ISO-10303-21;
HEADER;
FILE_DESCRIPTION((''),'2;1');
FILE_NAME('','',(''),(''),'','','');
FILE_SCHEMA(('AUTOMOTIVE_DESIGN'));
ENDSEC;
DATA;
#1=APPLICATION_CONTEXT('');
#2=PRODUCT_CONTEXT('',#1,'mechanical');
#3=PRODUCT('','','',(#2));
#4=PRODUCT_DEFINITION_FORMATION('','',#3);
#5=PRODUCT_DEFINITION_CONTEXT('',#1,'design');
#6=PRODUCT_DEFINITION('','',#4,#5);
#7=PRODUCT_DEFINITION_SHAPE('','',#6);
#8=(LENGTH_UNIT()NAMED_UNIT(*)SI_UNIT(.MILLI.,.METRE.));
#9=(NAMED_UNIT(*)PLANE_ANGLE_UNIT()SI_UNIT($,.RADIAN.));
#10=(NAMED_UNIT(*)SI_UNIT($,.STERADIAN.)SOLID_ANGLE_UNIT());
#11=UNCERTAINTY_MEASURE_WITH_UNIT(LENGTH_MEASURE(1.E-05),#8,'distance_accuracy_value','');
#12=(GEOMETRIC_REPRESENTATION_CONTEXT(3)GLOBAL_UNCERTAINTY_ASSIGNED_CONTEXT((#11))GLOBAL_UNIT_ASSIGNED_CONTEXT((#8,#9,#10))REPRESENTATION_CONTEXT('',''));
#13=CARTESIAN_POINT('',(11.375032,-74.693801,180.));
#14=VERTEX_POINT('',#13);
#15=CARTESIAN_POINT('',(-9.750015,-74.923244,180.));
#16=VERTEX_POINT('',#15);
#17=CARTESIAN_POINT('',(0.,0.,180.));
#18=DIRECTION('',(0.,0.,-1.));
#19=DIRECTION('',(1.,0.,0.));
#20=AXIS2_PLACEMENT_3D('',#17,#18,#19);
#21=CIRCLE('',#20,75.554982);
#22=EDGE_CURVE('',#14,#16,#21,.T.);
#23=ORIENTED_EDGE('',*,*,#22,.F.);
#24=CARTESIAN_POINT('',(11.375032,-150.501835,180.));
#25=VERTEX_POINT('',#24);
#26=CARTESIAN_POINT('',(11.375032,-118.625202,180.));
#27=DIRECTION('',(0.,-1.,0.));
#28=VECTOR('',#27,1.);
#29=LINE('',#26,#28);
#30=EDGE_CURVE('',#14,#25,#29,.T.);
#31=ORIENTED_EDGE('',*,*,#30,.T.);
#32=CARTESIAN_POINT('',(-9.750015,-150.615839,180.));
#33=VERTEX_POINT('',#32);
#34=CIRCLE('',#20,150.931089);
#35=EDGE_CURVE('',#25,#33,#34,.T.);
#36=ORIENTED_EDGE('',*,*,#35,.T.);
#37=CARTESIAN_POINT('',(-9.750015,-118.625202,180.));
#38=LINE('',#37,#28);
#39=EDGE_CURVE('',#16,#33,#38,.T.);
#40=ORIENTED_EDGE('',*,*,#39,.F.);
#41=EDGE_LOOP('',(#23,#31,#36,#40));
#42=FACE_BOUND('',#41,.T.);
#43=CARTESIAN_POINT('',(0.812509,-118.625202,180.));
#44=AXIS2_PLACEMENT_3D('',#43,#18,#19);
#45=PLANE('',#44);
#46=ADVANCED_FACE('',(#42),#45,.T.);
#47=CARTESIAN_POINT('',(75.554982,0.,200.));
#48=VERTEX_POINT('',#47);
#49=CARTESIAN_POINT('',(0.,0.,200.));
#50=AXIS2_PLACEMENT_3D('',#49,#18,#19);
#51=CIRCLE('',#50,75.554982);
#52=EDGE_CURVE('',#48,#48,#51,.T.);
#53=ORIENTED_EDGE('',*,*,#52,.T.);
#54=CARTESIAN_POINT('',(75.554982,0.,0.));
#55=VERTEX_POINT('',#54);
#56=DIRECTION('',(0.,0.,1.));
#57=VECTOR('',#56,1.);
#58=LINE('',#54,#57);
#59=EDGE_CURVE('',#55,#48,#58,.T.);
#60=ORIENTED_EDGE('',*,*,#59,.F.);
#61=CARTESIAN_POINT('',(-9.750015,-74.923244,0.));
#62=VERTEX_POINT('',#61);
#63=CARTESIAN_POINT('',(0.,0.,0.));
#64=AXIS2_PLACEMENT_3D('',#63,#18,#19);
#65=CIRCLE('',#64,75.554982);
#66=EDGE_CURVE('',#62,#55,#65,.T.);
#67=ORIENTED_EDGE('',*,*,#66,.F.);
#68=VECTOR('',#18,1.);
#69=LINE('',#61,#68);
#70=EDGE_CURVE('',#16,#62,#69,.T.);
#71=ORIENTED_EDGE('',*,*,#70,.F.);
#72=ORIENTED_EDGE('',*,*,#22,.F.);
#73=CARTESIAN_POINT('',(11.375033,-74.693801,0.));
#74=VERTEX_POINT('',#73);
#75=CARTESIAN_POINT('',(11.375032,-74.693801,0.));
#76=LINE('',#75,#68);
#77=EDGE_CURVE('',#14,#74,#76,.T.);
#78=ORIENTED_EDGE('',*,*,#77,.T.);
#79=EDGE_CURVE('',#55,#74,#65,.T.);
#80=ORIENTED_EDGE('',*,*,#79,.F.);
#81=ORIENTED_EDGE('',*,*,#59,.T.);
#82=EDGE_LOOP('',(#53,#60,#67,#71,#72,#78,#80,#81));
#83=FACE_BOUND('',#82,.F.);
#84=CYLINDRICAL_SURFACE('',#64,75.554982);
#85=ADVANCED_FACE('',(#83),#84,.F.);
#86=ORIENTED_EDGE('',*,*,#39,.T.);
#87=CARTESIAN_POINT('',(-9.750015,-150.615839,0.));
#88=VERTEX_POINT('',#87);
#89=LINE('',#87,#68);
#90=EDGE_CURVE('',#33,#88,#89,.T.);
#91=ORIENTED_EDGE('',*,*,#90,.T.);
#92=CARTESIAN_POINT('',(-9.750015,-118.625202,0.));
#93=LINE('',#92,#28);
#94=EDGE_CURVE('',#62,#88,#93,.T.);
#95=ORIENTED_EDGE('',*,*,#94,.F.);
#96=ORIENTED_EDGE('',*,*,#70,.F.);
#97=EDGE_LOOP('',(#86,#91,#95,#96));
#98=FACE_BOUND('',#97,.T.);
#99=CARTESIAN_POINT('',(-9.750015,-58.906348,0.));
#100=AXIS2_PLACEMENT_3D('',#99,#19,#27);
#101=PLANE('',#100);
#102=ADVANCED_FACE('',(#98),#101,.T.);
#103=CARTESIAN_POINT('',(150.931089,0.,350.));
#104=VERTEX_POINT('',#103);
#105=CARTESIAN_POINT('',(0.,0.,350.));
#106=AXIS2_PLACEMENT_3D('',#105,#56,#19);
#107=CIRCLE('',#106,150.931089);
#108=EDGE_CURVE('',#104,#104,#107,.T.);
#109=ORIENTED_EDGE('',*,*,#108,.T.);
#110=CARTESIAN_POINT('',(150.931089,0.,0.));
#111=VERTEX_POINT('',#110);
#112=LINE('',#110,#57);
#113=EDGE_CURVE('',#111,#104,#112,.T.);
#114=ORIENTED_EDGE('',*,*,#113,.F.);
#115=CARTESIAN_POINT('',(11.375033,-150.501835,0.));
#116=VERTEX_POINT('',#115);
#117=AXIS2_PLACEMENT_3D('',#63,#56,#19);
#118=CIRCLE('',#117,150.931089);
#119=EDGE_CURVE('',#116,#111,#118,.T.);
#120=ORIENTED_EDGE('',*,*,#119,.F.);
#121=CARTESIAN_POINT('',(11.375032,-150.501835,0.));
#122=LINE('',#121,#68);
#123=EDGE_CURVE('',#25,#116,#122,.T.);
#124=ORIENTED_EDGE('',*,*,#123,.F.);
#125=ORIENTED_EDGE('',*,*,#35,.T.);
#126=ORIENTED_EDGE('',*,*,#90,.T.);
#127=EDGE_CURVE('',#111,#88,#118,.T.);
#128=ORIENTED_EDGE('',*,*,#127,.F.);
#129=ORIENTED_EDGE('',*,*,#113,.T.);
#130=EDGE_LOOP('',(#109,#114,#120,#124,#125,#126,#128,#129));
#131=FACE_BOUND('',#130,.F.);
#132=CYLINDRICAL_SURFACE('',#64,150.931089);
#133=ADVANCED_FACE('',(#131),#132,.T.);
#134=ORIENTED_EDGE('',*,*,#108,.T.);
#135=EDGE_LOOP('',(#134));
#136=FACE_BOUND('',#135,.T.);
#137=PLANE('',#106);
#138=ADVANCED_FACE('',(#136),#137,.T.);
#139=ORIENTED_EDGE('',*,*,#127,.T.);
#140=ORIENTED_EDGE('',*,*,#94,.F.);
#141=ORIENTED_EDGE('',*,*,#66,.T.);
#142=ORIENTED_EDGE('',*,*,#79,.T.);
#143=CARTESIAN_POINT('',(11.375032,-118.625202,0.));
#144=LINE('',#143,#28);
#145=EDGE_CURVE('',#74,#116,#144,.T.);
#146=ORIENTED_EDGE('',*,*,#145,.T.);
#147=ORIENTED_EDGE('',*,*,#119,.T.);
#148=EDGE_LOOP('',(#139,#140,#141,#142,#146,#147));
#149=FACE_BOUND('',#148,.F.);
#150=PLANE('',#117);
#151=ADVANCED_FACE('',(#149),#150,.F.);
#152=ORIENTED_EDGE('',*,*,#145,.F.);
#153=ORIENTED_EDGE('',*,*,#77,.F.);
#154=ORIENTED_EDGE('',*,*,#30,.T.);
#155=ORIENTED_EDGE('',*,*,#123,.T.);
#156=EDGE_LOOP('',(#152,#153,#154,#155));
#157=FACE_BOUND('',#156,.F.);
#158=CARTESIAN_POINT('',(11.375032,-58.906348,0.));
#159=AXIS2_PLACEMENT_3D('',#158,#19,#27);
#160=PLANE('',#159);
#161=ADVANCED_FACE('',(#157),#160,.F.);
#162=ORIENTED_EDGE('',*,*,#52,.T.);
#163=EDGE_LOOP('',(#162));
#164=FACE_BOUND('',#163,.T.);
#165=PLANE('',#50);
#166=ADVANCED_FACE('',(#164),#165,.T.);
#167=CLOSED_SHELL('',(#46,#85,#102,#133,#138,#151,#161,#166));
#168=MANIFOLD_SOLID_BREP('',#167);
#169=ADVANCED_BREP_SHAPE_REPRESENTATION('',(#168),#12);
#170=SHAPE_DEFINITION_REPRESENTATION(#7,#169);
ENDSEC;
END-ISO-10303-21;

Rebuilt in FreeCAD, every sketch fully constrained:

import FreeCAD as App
import Part
import Sketcher
from FreeCAD import Vector

doc = App.newDocument("Part")
body = doc.addObject("PartDesign::Body", "Body")

sketch1 = doc.addObject("Sketcher::SketchObject", "Sketch")
body.addObject(sketch1)
sketch1.AttachmentSupport = (doc.XY_Plane, [""])
sketch1.MapMode = "FlatFace"
sketch1.addGeometry(Part.Circle(Vector(0, 0, 0), Vector(0, 0, 1), 150.931089), False)
sketch1.addConstraint(Sketcher.Constraint("Coincident", 0, 3, -1, 1))
sketch1.addConstraint(Sketcher.Constraint("Diameter", 0, 301.862178))
pad1 = doc.addObject("PartDesign::Pad", "Pad")
body.addObject(pad1)
pad1.Profile = sketch1
pad1.Length = 350

sketch2 = doc.addObject("Sketcher::SketchObject", "Sketch001")
body.addObject(sketch2)
sketch2.AttachmentSupport = (doc.XY_Plane, [""])
sketch2.MapMode = "FlatFace"
sketch2.addGeometry(Part.Circle(Vector(0, 0, 0), Vector(0, 0, 1), 75.554982), False)
sketch2.addConstraint(Sketcher.Constraint("Coincident", 0, 3, -1, 1))
sketch2.addConstraint(Sketcher.Constraint("Diameter", 0, 151.109964))
pocket1 = doc.addObject("PartDesign::Pocket", "Pocket")
body.addObject(pocket1)
pocket1.Profile = sketch2
pocket1.Length = 200
pocket1.Reversed = True

sketch3 = doc.addObject("Sketcher::SketchObject", "Sketch002")
body.addObject(sketch3)
sketch3.AttachmentSupport = (doc.XY_Plane, [""])
sketch3.MapMode = "FlatFace"
sketch3.addGeometry(Part.LineSegment(Vector(-9.750015, -178.344056, 0), Vector(-9.750015, -58.906348, 0)), False)
sketch3.addGeometry(Part.LineSegment(Vector(-9.750015, -58.906348, 0), Vector(11.375032, -58.906348, 0)), False)
sketch3.addGeometry(Part.LineSegment(Vector(11.375032, -58.906348, 0), Vector(11.375032, -178.344056, 0)), False)
sketch3.addGeometry(Part.LineSegment(Vector(11.375032, -178.344056, 0), Vector(-9.750015, -178.344056, 0)), False)
sketch3.addConstraint(Sketcher.Constraint("Coincident", 0, 2, 1, 1))
sketch3.addConstraint(Sketcher.Constraint("Coincident", 1, 2, 2, 1))
sketch3.addConstraint(Sketcher.Constraint("Coincident", 2, 2, 3, 1))
sketch3.addConstraint(Sketcher.Constraint("Coincident", 3, 2, 0, 1))
sketch3.addConstraint(Sketcher.Constraint("Vertical", 0))
sketch3.addConstraint(Sketcher.Constraint("Horizontal", 1))
sketch3.addConstraint(Sketcher.Constraint("Vertical", 2))
sketch3.addConstraint(Sketcher.Constraint("Horizontal", 3))
sketch3.addConstraint(Sketcher.Constraint("DistanceY", 0, 1, 0, 2, 119.437709))
sketch3.addConstraint(Sketcher.Constraint("DistanceX", 1, 1, 1, 2, 21.125047))
sketch3.addConstraint(Sketcher.Constraint("DistanceX", 0, 2, -1, 1, 9.750015))
sketch3.addConstraint(Sketcher.Constraint("DistanceY", 0, 2, -1, 1, 58.906348))
pocket2 = doc.addObject("PartDesign::Pocket", "Pocket001")
body.addObject(pocket2)
pocket2.Profile = sketch3
pocket2.Length = 180
pocket2.Reversed = True

doc.recompute()
